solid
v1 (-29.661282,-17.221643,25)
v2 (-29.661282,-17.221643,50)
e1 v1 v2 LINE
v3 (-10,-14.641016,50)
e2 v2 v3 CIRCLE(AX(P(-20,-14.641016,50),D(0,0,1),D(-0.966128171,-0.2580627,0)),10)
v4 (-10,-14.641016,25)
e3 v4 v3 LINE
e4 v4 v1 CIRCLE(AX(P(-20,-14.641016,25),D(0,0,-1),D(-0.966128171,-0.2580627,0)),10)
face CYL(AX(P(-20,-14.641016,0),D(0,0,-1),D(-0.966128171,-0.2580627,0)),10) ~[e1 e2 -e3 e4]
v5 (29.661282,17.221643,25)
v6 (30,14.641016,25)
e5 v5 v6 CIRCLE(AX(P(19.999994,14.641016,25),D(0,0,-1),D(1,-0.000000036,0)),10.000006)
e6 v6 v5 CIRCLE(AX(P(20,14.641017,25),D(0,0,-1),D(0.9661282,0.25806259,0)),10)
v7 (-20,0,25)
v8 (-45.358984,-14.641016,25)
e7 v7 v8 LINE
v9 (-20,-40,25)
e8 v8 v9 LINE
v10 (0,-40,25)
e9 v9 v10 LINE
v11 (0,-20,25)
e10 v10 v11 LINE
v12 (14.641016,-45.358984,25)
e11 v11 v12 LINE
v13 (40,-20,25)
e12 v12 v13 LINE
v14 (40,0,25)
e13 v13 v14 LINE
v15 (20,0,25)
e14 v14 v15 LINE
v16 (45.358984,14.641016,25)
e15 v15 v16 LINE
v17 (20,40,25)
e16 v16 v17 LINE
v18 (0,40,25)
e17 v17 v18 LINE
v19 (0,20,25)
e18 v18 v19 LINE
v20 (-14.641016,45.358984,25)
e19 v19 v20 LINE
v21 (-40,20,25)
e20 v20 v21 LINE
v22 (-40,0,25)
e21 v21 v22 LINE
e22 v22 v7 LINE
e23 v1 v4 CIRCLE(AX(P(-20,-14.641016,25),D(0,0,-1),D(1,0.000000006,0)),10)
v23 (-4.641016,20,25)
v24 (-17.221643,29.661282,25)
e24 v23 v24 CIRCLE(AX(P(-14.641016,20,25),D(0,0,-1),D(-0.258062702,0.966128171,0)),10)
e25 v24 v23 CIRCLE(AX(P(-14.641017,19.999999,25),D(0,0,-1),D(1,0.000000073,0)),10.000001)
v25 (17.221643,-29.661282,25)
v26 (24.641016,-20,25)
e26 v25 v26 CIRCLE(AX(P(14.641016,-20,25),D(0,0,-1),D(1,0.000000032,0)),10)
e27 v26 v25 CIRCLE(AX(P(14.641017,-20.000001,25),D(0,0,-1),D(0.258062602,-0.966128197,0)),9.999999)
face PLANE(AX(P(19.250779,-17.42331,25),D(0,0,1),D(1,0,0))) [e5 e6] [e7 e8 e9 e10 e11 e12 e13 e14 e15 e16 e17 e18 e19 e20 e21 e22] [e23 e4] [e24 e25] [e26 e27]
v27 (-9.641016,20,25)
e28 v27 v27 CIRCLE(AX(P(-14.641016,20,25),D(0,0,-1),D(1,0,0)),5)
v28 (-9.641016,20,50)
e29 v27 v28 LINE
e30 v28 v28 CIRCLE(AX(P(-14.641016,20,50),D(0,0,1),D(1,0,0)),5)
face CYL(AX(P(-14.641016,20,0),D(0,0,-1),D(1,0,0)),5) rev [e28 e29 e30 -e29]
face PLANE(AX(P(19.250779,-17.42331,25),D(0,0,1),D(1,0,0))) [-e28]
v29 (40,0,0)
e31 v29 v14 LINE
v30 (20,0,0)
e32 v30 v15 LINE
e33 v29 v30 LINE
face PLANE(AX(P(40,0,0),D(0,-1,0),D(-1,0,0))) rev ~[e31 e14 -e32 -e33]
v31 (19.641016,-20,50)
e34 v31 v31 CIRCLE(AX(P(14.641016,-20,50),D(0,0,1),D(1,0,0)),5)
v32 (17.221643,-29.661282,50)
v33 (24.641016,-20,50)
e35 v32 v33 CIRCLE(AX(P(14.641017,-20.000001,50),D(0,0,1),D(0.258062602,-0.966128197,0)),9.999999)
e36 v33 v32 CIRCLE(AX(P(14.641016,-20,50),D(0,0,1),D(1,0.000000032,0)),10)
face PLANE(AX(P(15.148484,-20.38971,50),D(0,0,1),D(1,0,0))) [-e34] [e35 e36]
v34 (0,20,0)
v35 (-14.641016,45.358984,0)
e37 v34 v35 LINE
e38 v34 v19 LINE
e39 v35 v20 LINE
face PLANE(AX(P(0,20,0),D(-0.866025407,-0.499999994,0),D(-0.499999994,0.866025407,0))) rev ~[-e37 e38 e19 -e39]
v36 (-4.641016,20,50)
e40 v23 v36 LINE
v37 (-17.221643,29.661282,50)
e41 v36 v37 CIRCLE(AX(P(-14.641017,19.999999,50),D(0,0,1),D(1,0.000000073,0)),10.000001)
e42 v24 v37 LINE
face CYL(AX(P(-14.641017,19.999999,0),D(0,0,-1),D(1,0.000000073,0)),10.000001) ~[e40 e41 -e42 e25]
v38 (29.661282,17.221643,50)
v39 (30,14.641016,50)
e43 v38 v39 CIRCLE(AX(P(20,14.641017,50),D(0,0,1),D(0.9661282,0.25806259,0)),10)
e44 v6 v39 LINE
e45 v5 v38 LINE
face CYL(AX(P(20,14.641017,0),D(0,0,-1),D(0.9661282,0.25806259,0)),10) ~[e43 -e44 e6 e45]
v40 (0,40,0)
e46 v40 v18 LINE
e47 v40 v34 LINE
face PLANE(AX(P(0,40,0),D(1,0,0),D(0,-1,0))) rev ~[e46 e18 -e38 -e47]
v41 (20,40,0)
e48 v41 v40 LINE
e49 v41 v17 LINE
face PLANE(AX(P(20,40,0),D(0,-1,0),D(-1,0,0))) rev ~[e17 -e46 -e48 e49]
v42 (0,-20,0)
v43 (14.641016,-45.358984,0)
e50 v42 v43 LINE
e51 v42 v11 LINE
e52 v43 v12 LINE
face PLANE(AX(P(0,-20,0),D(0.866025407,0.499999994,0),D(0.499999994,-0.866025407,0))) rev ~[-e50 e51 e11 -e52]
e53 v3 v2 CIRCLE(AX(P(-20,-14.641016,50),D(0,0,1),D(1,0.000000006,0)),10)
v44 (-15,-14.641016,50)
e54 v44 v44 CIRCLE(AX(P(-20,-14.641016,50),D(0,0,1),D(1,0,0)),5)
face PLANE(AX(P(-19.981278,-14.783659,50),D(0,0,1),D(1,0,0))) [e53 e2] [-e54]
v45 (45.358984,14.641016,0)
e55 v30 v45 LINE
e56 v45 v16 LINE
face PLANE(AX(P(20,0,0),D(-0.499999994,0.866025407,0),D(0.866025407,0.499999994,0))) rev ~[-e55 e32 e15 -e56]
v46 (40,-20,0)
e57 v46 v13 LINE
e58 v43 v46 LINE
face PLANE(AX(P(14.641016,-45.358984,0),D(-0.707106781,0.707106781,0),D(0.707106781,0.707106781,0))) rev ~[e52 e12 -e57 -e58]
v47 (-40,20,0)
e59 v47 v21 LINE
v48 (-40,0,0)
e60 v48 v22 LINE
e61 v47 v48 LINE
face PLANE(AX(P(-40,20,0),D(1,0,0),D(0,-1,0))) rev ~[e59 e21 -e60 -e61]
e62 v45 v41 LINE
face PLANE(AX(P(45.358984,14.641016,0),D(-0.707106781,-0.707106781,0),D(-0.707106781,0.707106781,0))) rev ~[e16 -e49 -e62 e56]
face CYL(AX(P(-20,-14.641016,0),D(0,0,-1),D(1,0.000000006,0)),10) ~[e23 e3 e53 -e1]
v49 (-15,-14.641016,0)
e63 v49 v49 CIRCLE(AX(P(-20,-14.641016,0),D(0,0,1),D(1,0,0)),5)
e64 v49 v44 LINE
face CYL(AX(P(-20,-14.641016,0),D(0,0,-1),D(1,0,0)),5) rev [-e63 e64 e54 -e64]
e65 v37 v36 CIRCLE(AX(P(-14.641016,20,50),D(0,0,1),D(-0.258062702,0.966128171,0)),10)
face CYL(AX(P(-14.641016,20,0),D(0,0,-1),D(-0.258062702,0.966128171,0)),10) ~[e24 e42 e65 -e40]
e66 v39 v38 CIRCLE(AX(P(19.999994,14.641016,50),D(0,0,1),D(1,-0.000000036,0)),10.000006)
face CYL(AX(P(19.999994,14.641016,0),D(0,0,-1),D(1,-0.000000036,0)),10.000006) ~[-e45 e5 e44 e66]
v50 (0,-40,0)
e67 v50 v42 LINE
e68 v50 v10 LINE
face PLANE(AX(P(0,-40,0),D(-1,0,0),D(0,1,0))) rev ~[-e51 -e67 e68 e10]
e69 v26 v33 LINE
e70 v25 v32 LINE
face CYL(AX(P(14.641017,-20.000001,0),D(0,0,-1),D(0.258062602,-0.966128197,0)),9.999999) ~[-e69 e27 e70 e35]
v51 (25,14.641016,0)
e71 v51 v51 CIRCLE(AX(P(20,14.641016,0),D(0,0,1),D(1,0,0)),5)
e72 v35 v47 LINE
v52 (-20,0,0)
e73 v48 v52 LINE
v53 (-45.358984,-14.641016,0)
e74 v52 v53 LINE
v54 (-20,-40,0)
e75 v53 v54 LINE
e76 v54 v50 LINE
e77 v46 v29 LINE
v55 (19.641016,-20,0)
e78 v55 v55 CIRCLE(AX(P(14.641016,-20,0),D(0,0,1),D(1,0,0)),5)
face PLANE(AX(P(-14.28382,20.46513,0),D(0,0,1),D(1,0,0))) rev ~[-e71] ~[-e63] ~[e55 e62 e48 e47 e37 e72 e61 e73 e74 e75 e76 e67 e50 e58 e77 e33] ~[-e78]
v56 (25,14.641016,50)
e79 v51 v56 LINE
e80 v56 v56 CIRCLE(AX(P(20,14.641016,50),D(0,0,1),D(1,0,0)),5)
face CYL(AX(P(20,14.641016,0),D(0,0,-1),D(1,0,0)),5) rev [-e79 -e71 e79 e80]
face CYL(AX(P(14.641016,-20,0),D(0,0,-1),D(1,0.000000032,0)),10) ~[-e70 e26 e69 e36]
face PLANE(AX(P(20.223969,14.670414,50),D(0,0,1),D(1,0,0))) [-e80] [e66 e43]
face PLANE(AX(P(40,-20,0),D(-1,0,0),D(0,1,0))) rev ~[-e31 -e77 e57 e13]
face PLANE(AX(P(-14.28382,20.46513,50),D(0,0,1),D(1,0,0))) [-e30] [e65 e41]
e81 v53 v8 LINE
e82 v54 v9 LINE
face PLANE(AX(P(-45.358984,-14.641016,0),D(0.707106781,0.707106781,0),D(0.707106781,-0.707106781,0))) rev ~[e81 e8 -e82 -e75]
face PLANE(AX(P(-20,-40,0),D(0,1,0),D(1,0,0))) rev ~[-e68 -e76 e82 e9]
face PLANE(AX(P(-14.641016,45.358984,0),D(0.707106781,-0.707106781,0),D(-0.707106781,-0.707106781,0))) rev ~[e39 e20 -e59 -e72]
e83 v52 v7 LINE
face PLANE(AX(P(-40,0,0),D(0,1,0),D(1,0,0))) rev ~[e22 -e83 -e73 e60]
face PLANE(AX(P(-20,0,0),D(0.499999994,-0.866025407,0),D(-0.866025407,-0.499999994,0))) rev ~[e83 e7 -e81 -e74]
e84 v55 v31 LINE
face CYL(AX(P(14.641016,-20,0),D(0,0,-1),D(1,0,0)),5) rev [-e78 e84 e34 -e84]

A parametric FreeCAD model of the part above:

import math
import FreeCAD as App
import Part
import Sketcher

V = App.Vector
Q = App.Units.Quantity


def add_polygon(sketch, points):
    """Adds a closed chain of lines whose ends are joined by coincident constraints."""
    first, n = sketch.GeometryCount, len(points)
    for a, b in zip(points, points[1:] + points[:1]):
        sketch.addGeometry(Part.LineSegment(App.Vector(*a, 0), App.Vector(*b, 0)), False)
    for i in range(n):
        sketch.addConstraint(Sketcher.Constraint("Coincident", first + i, 2, first + (i + 1) % n, 1))

doc = App.newDocument("Part")
body = doc.addObject("PartDesign::Body", "Body")

# Sketch on XY plane
sketch1 = doc.addObject("Sketcher::SketchObject", "Sketch")
body.addObject(sketch1)
sketch1.AttachmentSupport = (doc.XY_Plane, [""])
sketch1.MapMode = "FlatFace"
add_polygon(sketch1, [(40, 0), (20, 0), (45, 15), (20, 40), (0, 40), (0, 20), (-15, 45), (-40, 20), (-40, 0), (-20, 0), (-45, -15), (-20, -40), (0, -40), (0, -20), (15, -45), (40, -20)])  # lines 0-15
sketch1.addGeometry(Part.Circle(V(-20, -15, 0), V(0, 0, 1), 5), False)  # 16
sketch1.addGeometry(Part.Circle(V(15, -20, 0), V(0, 0, 1), 5), False)  # 17
sketch1.addGeometry(Part.Circle(V(20, 15, 0), V(0, 0, 1), 5), False)  # 18
sketch1.addConstraint([
    Sketcher.Constraint("Horizontal", 0),
    Sketcher.Constraint("Horizontal", 3),
    Sketcher.Constraint("Vertical", 4),
    Sketcher.Constraint("Vertical", 7),
    Sketcher.Constraint("Horizontal", 8),
    Sketcher.Constraint("Horizontal", 11),
    Sketcher.Constraint("Vertical", 12),
    Sketcher.Constraint("Vertical", 15),
    Sketcher.Constraint("Equal", 16, 17),
    Sketcher.Constraint("Equal", 17, 18),
    Sketcher.Constraint("Symmetric", 16, 3, 18, 3, -1, 1),
    Sketcher.Constraint("Symmetric", 0, 2, 8, 2, -1, 1),
    Sketcher.Constraint("Symmetric", 1, 2, 9, 2, -1, 1),
    Sketcher.Constraint("Symmetric", 2, 2, 10, 2, -1, 1),
    Sketcher.Constraint("Symmetric", 4, 2, 12, 2, -1, 1),
    Sketcher.Constraint("Symmetric", 5, 2, 13, 2, -1, 1),
    Sketcher.Constraint("Symmetric", 6, 2, 14, 2, -1, 1),
    Sketcher.Constraint("PointOnObject", 0, 2, -1),
    Sketcher.Constraint("PointOnObject", 3, 2, -2),
    Sketcher.Constraint("Perpendicular", 1, 5),
    Sketcher.Constraint("Perpendicular", 2, 6),
    Sketcher.Constraint("Horizontal", 18, 3, 1, 2),
    Sketcher.Constraint("Horizontal", 4, 2, 6, 2),
    Sketcher.Constraint("Horizontal", 17, 3, 12, 2),
    Sketcher.Constraint("Vertical", 18, 3, 0, 2),
    Sketcher.Constraint("Vertical", 0, 2, 2, 2),
    Sketcher.Constraint("Vertical", 17, 3, 13, 2),
    Sketcher.Constraint("Equal", 0, 3),
    Sketcher.Constraint("Equal", 11, 4),
    Sketcher.Constraint("Equal", 4, 7),
    Sketcher.Constraint("Diameter", 16, Q("10 mm")),
    Sketcher.Constraint("DistanceX", 0, 2, 0, 1, Q("20 mm")),
    Sketcher.Constraint("Angle", 1, Q("30 deg")),
    Sketcher.Constraint("Angle", 2, Q("135 deg")),
])
pad1 = doc.addObject("PartDesign::Pad", "Pad")
body.addObject(pad1)
pad1.Profile = sketch1
pad1.Length = 25

# Sketch on XY plane
sketch2 = doc.addObject("Sketcher::SketchObject", "Sketch001")
body.addObject(sketch2)
sketch2.AttachmentSupport = (doc.XY_Plane, [""])
sketch2.MapMode = "FlatFace"
sketch2.addGeometry([
    Part.ArcOfCircle(Part.Circle(V(-14.6, 20, 0), V(0, 0, 1), 10), math.radians(0), math.radians(105)),  # 0
    Part.ArcOfCircle(Part.Circle(V(-14.6, 20, 0), V(0, 0, 1), 10), math.radians(105), math.radians(360)),  # 1
    Part.Circle(V(-14.6, 20, 0), V(0, 0, 1), 5),  # 2
    Part.ArcOfCircle(Part.Circle(V(-20, -14.6, 0), V(0, 0, 1), 10), math.radians(0), math.radians(195)),  # 3
    Part.ArcOfCircle(Part.Circle(V(-20, -14.6, 0), V(0, 0, 1), 10), math.radians(-165), math.radians(0)),  # 4
    Part.Circle(V(-20, -14.6, 0), V(0, 0, 1), 5),  # 5
    Part.ArcOfCircle(Part.Circle(V(14.6, -20, 0), V(0, 0, 1), 10), math.radians(0), math.radians(285)),  # 6
    Part.ArcOfCircle(Part.Circle(V(14.6, -20, 0), V(0, 0, 1), 10), math.radians(-75), math.radians(0)),  # 7
    Part.Circle(V(14.6, -20, 0), V(0, 0, 1), 5),  # 8
    Part.ArcOfCircle(Part.Circle(V(20, 14.6, 0), V(0, 0, 1), 10), math.radians(0), math.radians(14.96)),  # 9
    Part.ArcOfCircle(Part.Circle(V(20, 14.6, 0), V(0, 0, 1), 10), math.radians(15), math.radians(360)),  # 10
    Part.Circle(V(20, 14.6, 0), V(0, 0, 1), 5),  # 11
], False)
sketch2.addConstraint([
    Sketcher.Constraint("Tangent", 0, 1, 1, 2),
    Sketcher.Constraint("Coincident", 1, 1, 0, 2),
    Sketcher.Constraint("Tangent", 3, 1, 4, 2),
    Sketcher.Constraint("Coincident", 4, 1, 3, 2),
    Sketcher.Constraint("Tangent", 6, 1, 7, 2),
    Sketcher.Constraint("Coincident", 7, 1, 6, 2),
    Sketcher.Constraint("Tangent", 9, 1, 10, 2),
    Sketcher.Constraint("Coincident", 10, 1, 9, 2),
    Sketcher.Constraint("Coincident", 2, 3, 0, 3),
    Sketcher.Constraint("Coincident", 5, 3, 3, 3),
    Sketcher.Constraint("Coincident", 8, 3, 6, 3),
    Sketcher.Constraint("Coincident", 11, 3, 9, 3),
    Sketcher.Constraint("Equal", 1, 3),
    Sketcher.Constraint("Equal", 2, 5),
    Sketcher.Constraint("Equal", 4, 6),
    Sketcher.Constraint("Equal", 5, 8),
    Sketcher.Constraint("Equal", 7, 10),
    Sketcher.Constraint("Equal", 8, 11),
    Sketcher.Constraint("Symmetric", 0, 3, 6, 3, -1, 1),
    Sketcher.Constraint("Symmetric", 3, 3, 9, 3, -1, 1),
    Sketcher.Constraint("Horizontal", 2, 3, 0, 1),
    Sketcher.Constraint("Horizontal", 5, 3, 3, 1),
    Sketcher.Constraint("Horizontal", 8, 3, 6, 1),
    Sketcher.Constraint("Horizontal", 11, 3, 9, 1),
    Sketcher.Constraint("Diameter", 2, Q("10 mm")),
    Sketcher.Constraint("Radius", 0, Q("10.000001 mm")),
    Sketcher.Constraint("DistanceY", -1, 1, 0, 3, Q("19.999999 mm")),
    Sketcher.Constraint("DistanceX", 3, 3, -1, 1, Q("20 mm")),
    Sketcher.Constraint("DistanceY", -1, 1, 1, 1, Q("29.661282 mm")),
    Sketcher.Constraint("DistanceY", 7, 1, -1, 1, Q("29.661282 mm")),
    Sketcher.Constraint("DistanceX", -1, 1, 10, 1, Q("29.661282 mm")),
    Sketcher.Constraint("DistanceX", 2, 3, 9, 3, Q("34.64101 mm")),
    Sketcher.Constraint("DistanceX", 4, 1, 3, 3, Q("9.661282 mm")),
    Sketcher.Constraint("DistanceY", 3, 3, -1, 1, Q("14.641016 mm")),
])
pad2 = doc.addObject("PartDesign::Pad", "Pad001")
body.addObject(pad2)
pad2.Profile = sketch2
pad2.Length = 50

doc.recompute()
